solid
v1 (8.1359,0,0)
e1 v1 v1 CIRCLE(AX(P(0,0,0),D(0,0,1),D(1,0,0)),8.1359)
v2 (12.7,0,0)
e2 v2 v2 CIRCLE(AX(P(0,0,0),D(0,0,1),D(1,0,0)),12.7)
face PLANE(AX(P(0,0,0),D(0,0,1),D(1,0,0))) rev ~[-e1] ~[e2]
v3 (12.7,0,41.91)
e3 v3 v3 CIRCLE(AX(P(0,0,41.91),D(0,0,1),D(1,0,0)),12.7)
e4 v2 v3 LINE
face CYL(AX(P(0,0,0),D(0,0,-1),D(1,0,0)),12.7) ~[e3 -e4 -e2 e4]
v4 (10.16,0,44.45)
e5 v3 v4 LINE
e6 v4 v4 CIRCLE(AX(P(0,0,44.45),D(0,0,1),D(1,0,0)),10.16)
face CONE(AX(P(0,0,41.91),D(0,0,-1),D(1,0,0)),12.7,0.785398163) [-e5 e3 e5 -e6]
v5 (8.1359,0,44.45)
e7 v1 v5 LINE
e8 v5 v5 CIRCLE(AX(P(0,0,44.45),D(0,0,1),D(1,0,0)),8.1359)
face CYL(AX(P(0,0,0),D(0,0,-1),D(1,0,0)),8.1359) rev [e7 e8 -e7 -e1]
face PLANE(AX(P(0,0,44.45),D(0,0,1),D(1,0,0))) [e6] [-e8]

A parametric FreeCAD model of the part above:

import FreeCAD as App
import Part
import Sketcher

V = App.Vector
Q = App.Units.Quantity


def edges_at(feature, points):
    """Names of the edges that pass closest to the given points."""
    edges = feature.Shape.Edges
    near = lambda p: min(range(len(edges)), key=lambda i: edges[i].distToShape(Part.Vertex(*p))[0])
    return sorted({f"Edge{near(p) + 1}" for p in points})

doc = App.newDocument("Part")
body = doc.addObject("PartDesign::Body", "Body")

# Sketch on XY plane
sketch1 = body.newObject("Sketcher::SketchObject", "Sketch")
sketch1.AttachmentSupport = (doc.getObject("XY_Plane"), [""])
sketch1.MapMode = "FlatFace"
sketch1.addGeometry([
    Part.Circle(V(0, 0, 0), V(0, 0, 1), 13),
    Part.Circle(V(0, 0, 0), V(0, 0, 1), 8),
], False)
sketch1.addConstraint([
    Sketcher.Constraint("Coincident", 0, 3, -1, 1),
    Sketcher.Constraint("Coincident", 1, 3, -1, 1),
    Sketcher.Constraint("Diameter", 0, Q("1 in")),
    Sketcher.Constraint("Diameter", 1, Q("0.640622 in")),
])
pad1 = body.newObject("PartDesign::Pad", "Pad")
pad1.Profile = sketch1
pad1.Length = Q("1.75 in")
doc.recompute()

chamfer = body.newObject("PartDesign::Chamfer", "Chamfer")
chamfer.Base = (pad1, edges_at(pad1, [(-12.7, 0, 44.45)]))
chamfer.Size = Q("0.1 in")

doc.recompute()
